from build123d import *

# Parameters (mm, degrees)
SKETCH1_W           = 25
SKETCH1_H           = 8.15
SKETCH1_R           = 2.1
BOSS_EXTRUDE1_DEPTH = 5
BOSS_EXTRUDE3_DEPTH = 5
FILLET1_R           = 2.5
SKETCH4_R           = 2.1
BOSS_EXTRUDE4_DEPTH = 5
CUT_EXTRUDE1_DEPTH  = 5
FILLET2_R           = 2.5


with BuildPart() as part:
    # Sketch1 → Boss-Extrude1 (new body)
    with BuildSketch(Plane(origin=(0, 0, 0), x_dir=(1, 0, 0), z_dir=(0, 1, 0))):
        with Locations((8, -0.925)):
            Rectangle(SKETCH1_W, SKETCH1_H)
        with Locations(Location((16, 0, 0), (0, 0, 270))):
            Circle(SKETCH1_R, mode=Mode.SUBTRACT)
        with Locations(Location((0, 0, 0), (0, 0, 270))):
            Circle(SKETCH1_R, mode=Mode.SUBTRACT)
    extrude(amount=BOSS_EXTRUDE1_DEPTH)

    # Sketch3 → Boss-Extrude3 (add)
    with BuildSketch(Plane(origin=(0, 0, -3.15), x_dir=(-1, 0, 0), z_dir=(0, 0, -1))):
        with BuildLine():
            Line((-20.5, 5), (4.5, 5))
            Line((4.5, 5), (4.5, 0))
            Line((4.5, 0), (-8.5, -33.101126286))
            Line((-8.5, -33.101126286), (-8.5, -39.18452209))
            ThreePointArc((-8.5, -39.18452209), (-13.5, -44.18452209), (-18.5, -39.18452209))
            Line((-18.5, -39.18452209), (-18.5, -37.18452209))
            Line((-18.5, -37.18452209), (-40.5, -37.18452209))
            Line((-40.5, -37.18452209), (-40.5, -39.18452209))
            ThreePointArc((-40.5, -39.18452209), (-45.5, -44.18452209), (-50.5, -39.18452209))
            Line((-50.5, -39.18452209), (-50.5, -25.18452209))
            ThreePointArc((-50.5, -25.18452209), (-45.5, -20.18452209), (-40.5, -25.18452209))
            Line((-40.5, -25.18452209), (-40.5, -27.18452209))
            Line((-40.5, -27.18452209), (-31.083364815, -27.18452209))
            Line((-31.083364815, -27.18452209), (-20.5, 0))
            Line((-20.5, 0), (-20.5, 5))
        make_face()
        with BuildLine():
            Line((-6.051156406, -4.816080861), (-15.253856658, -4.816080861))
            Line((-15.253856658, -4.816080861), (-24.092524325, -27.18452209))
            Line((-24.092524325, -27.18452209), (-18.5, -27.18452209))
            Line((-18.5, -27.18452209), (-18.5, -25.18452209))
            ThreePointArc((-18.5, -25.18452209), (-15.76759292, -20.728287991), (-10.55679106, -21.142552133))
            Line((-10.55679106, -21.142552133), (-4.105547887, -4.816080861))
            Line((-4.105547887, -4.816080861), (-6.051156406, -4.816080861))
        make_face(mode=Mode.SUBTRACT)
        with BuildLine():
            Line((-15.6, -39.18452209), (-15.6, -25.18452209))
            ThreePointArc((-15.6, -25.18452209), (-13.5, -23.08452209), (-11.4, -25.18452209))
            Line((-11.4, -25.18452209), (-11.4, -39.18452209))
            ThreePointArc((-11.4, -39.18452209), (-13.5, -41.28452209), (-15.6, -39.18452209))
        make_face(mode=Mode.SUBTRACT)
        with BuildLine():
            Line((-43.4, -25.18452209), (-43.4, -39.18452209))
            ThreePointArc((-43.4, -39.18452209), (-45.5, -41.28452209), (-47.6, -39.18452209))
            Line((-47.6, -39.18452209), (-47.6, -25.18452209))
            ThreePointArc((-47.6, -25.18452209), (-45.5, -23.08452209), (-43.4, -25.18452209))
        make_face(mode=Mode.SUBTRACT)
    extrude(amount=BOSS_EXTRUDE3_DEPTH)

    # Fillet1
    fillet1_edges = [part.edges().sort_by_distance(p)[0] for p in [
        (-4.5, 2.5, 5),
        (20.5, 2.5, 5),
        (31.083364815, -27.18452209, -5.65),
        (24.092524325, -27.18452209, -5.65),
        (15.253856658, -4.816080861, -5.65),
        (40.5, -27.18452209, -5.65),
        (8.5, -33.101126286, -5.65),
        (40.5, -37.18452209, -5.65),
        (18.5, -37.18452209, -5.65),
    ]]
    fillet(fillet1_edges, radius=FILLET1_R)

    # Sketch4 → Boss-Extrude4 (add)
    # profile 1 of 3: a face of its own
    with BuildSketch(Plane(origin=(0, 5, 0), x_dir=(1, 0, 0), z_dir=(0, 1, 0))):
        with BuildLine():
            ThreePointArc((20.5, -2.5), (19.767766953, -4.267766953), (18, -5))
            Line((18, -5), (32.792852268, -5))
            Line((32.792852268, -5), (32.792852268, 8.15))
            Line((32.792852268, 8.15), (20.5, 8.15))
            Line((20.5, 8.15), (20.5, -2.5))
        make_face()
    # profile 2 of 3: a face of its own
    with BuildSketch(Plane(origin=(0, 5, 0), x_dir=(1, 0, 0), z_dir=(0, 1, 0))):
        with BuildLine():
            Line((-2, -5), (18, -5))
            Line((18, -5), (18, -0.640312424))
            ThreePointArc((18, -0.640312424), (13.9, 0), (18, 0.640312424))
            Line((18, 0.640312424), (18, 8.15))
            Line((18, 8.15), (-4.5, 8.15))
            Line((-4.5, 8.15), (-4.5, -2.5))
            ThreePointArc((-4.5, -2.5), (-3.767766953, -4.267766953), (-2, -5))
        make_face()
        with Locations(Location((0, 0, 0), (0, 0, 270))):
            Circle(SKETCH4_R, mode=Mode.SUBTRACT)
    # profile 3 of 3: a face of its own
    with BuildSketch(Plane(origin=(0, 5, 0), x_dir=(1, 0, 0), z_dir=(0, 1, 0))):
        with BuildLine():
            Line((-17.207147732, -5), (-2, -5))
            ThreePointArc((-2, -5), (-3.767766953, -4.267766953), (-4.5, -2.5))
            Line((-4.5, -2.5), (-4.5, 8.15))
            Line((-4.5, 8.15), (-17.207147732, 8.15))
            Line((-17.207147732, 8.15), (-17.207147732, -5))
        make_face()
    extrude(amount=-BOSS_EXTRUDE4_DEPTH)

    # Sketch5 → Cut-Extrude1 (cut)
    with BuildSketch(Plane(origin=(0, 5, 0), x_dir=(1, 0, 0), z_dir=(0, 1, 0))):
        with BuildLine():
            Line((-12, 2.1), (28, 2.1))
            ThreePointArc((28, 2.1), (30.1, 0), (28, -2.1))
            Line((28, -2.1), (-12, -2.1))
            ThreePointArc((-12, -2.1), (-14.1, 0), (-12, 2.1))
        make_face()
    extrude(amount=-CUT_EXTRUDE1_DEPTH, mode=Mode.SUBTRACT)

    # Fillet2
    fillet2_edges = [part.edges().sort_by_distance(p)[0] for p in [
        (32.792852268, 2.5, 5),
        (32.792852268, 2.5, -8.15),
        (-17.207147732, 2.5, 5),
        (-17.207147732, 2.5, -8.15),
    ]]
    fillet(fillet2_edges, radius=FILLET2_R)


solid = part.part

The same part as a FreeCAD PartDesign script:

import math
import FreeCAD as App
import Part
import Sketcher
from FreeCAD import Vector
Q = App.Units.Quantity


def edges_at(feature, points):
    """Names of the edges that pass closest to the given points."""
    edges = feature.Shape.Edges
    near = lambda p: min(range(len(edges)), key=lambda i: edges[i].distToShape(Part.Vertex(*p))[0])
    return sorted({f"Edge{near(p) + 1}" for p in points})

doc = App.newDocument("Part")
body = doc.addObject("PartDesign::Body", "Body")

sketch1 = body.newObject("Sketcher::SketchObject", "Sketch")
sketch1.AttachmentSupport = (doc.getObject("XZ_Plane"), [""])
sketch1.MapMode = "FlatFace"
sketch1.addGeometry(Part.LineSegment(Vector(-4.5, -3.15, 0), Vector(-4.5, 5, 0)), False)
sketch1.addGeometry(Part.LineSegment(Vector(-4.5, 5, 0), Vector(20.5, 5, 0)), False)
sketch1.addGeometry(Part.LineSegment(Vector(20.5, 5, 0), Vector(20.5, -3.15, 0)), False)
sketch1.addGeometry(Part.LineSegment(Vector(20.5, -3.15, 0), Vector(-4.5, -3.15, 0)), False)
sketch1.addGeometry(Part.Circle(Vector(0, 0, 0), Vector(0, 0, 1), 2.1), False)
sketch1.addGeometry(Part.Circle(Vector(16, 0, 0), Vector(0, 0, 1), 2.1), False)
sketch1.addConstraint(Sketcher.Constraint("Coincident", 0, 2, 1, 1))
sketch1.addConstraint(Sketcher.Constraint("Coincident", 1, 2, 2, 1))
sketch1.addConstraint(Sketcher.Constraint("Coincident", 2, 2, 3, 1))
sketch1.addConstraint(Sketcher.Constraint("Coincident", 3, 2, 0, 1))
sketch1.addConstraint(Sketcher.Constraint("Vertical", 0))
sketch1.addConstraint(Sketcher.Constraint("Horizontal", 1))
sketch1.addConstraint(Sketcher.Constraint("Vertical", 2))
sketch1.addConstraint(Sketcher.Constraint("Horizontal", 3))
sketch1.addConstraint(Sketcher.Constraint("Coincident", 4, 3, -1, 1))
sketch1.addConstraint(Sketcher.Constraint("Equal", 4, 5))
sketch1.addConstraint(Sketcher.Constraint("PointOnObject", 5, 3, -1))
sketch1.addConstraint(Sketcher.Constraint("Diameter", 4, Q("4.2 mm")))
sketch1.addConstraint(Sketcher.Constraint("DistanceX", 1, 1, 1, 2, Q("25 mm")))
sketch1.addConstraint(Sketcher.Constraint("DistanceX", -1, 1, 5, 3, Q("16 mm")))
sketch1.addConstraint(Sketcher.Constraint("DistanceY", -1, 1, 0, 2, Q("5 mm")))
sketch1.addConstraint(Sketcher.Constraint("DistanceY", 0, 1, 0, 2, Q("8.15 mm")))
sketch1.addConstraint(Sketcher.Constraint("DistanceX", 0, 2, -1, 1, Q("4.5 mm")))
pad1 = body.newObject("PartDesign::Pad", "Pad")
pad1.Profile = sketch1
pad1.Length = 5
pad1.Reversed = True

sketch2 = body.newObject("Sketcher::SketchObject", "Sketch001")
sketch2.AttachmentSupport = (doc.getObject("XY_Plane"), [""])
sketch2.MapMode = "FlatFace"
sketch2.AttachmentOffset = App.Placement(Vector(0, 0, -3.15), App.Rotation())
sketch2.addGeometry(Part.LineSegment(Vector(-4.5, 5, 0), Vector(20.5, 5, 0)), False)
sketch2.addGeometry(Part.LineSegment(Vector(20.5, 5, 0), Vector(20.5, 0, 0)), False)
sketch2.addGeometry(Part.LineSegment(Vector(20.5, 0, 0), Vector(31.083365, -27.184522, 0)), False)
sketch2.addGeometry(Part.LineSegment(Vector(31.083365, -27.184522, 0), Vector(40.5, -27.184522, 0)), False)
sketch2.addGeometry(Part.LineSegment(Vector(40.5, -27.184522, 0), Vector(40.5, -25.184522, 0)), False)
sketch2.addGeometry(Part.ArcOfCircle(Part.Circle(Vector(45.5, -25.184522, 0), Vector(0, 0, 1), 5), math.radians(0), math.radians(180)), False)
sketch2.addGeometry(Part.LineSegment(Vector(50.5, -25.184522, 0), Vector(50.5, -39.184522, 0)), False)
sketch2.addGeometry(Part.ArcOfCircle(Part.Circle(Vector(45.5, -39.184522, 0), Vector(0, 0, 1), 5), math.radians(180), math.radians(360)), False)
sketch2.addGeometry(Part.LineSegment(Vector(40.5, -39.184522, 0), Vector(40.5, -37.184522, 0)), False)
sketch2.addGeometry(Part.LineSegment(Vector(40.5, -37.184522, 0), Vector(18.5, -37.184522, 0)), False)
sketch2.addGeometry(Part.LineSegment(Vector(18.5, -37.184522, 0), Vector(18.5, -39.184522, 0)), False)
sketch2.addGeometry(Part.ArcOfCircle(Part.Circle(Vector(13.5, -39.184522, 0), Vector(0, 0, 1), 5), math.radians(180), math.radians(360)), False)
sketch2.addGeometry(Part.LineSegment(Vector(8.5, -39.184522, 0), Vector(8.5, -33.101126, 0)), False)
sketch2.addGeometry(Part.LineSegment(Vector(8.5, -33.101126, 0), Vector(-4.5, 0, 0)), False)
sketch2.addGeometry(Part.LineSegment(Vector(-4.5, 0, 0), Vector(-4.5, 5, 0)), False)
sketch2.addGeometry(Part.LineSegment(Vector(15.6, -39.184522, 0), Vector(15.6, -25.184522, 0)), False)
sketch2.addGeometry(Part.ArcOfCircle(Part.Circle(Vector(13.5, -25.184522, 0), Vector(0, 0, 1), 2.1), math.radians(0), math.radians(180)), False)
sketch2.addGeometry(Part.LineSegment(Vector(11.4, -25.184522, 0), Vector(11.4, -39.184522, 0)), False)
sketch2.addGeometry(Part.ArcOfCircle(Part.Circle(Vector(13.5, -39.184522, 0), Vector(0, 0, 1), 2.1), math.radians(180), math.radians(360)), False)
sketch2.addGeometry(Part.LineSegment(Vector(43.4, -25.184522, 0), Vector(43.4, -39.184522, 0)), False)
sketch2.addGeometry(Part.ArcOfCircle(Part.Circle(Vector(45.5, -39.184522, 0), Vector(0, 0, 1), 2.1), math.radians(180), math.radians(360)), False)
sketch2.addGeometry(Part.LineSegment(Vector(47.6, -39.184522, 0), Vector(47.6, -25.184522, 0)), False)
sketch2.addGeometry(Part.ArcOfCircle(Part.Circle(Vector(45.5, -25.184522, 0), Vector(0, 0, 1), 2.1), math.radians(0), math.radians(180)), False)
sketch2.addGeometry(Part.LineSegment(Vector(15.253857, -4.816081, 0), Vector(4.105548, -4.816081, 0)), False)
sketch2.addGeometry(Part.LineSegment(Vector(4.105548, -4.816081, 0), Vector(10.556791, -21.142552, 0)), False)
sketch2.addGeometry(Part.ArcOfCircle(Part.Circle(Vector(13.5, -25.184522, 0), Vector(0, 0, 1), 5), math.radians(0), math.radians(126.060684)), False)
sketch2.addGeometry(Part.LineSegment(Vector(18.5, -25.184522, 0), Vector(18.5, -27.184522, 0)), False)
sketch2.addGeometry(Part.LineSegment(Vector(18.5, -27.184522, 0), Vector(24.092524, -27.184522, 0)), False)
sketch2.addGeometry(Part.LineSegment(Vector(24.092524, -27.184522, 0), Vector(15.253857, -4.816081, 0)), False)
sketch2.addConstraint(Sketcher.Constraint("Coincident", 0, 2, 1, 1))
sketch2.addConstraint(Sketcher.Constraint("Coincident", 1, 2, 2, 1))
sketch2.addConstraint(Sketcher.Constraint("Coincident", 2, 2, 3, 1))
sketch2.addConstraint(Sketcher.Constraint("Coincident", 3, 2, 4, 1))
sketch2.addConstraint(Sketcher.Constraint("Tangent", 4, 2, 5, 2))
sketch2.addConstraint(Sketcher.Constraint("Tangent", 5, 1, 6, 1))
sketch2.addConstraint(Sketcher.Constraint("Tangent", 6, 2, 7, 2))
sketch2.addConstraint(Sketcher.Constraint("Tangent", 7, 1, 8, 1))
sketch2.addConstraint(Sketcher.Constraint("Coincident", 8, 2, 9, 1))
sketch2.addConstraint(Sketcher.Constraint("Coincident", 9, 2, 10, 1))
sketch2.addConstraint(Sketcher.Constraint("Tangent", 10, 2, 11, 2))
sketch2.addConstraint(Sketcher.Constraint("Tangent", 11, 1, 12, 1))
sketch2.addConstraint(Sketcher.Constraint("Coincident", 12, 2, 13, 1))
sketch2.addConstraint(Sketcher.Constraint("Coincident", 13, 2, 14, 1))
sketch2.addConstraint(Sketcher.Constraint("Coincident", 14, 2, 0, 1))
sketch2.addConstraint(Sketcher.Constraint("Tangent", 15, 2, 16, 1))
sketch2.addConstraint(Sketcher.Constraint("Tangent", 16, 2, 17, 1))
sketch2.addConstraint(Sketcher.Constraint("Tangent", 17, 2, 18, 1))
sketch2.addConstraint(Sketcher.Constraint("Tangent", 18, 2, 15, 1))
sketch2.addConstraint(Sketcher.Constraint("Tangent", 19, 2, 20, 1))
sketch2.addConstraint(Sketcher.Constraint("Tangent", 20, 2, 21, 1))
sketch2.addConstraint(Sketcher.Constraint("Tangent", 21, 2, 22, 1))
sketch2.addConstraint(Sketcher.Constraint("Tangent", 22, 2, 19, 1))
sketch2.addConstraint(Sketcher.Constraint("Coincident", 23, 2, 24, 1))
sketch2.addConstraint(Sketcher.Constraint("Coincident", 24, 2, 25, 2))
sketch2.addConstraint(Sketcher.Constraint("Tangent", 25, 1, 26, 1))
sketch2.addConstraint(Sketcher.Constraint("Coincident", 26, 2, 27, 1))
sketch2.addConstraint(Sketcher.Constraint("Coincident", 27, 2, 28, 1))
sketch2.addConstraint(Sketcher.Constraint("Coincident", 28, 2, 23, 1))
sketch2.addConstraint(Sketcher.Constraint("Horizontal", 0))
sketch2.addConstraint(Sketcher.Constraint("Vertical", 1))
sketch2.addConstraint(Sketcher.Constraint("Horizontal", 3))
sketch2.addConstraint(Sketcher.Constraint("Vertical", 4))
sketch2.addConstraint(Sketcher.Constraint("Vertical", 6))
sketch2.addConstraint(Sketcher.Constraint("Vertical", 8))
sketch2.addConstraint(Sketcher.Constraint("Horizontal", 9))
sketch2.addConstraint(Sketcher.Constraint("Vertical", 10))
sketch2.addConstraint(Sketcher.Constraint("Vertical", 12))
sketch2.addConstraint(Sketcher.Constraint("Vertical", 14))
sketch2.addConstraint(Sketcher.Constraint("Vertical", 15))
sketch2.addConstraint(Sketcher.Constraint("Vertical", 17))
sketch2.addConstraint(Sketcher.Constraint("Vertical", 19))
sketch2.addConstraint(Sketcher.Constraint("Vertical", 21))
sketch2.addConstraint(Sketcher.Constraint("Horizontal", 23))
sketch2.addConstraint(Sketcher.Constraint("Vertical", 26))
sketch2.addConstraint(Sketcher.Constraint("Horizontal", 27))
sketch2.addConstraint(Sketcher.Constraint("Coincident", 18, 3, 11, 3))
sketch2.addConstraint(Sketcher.Constraint("Coincident", 20, 3, 7, 3))
sketch2.addConstraint(Sketcher.Constraint("Coincident", 22, 3, 5, 3))
sketch2.addConstraint(Sketcher.Constraint("Coincident", 25, 3, 16, 3))
sketch2.addConstraint(Sketcher.Constraint("Equal", 7, 11))
sketch2.addConstraint(Sketcher.Constraint("Equal", 18, 20))
sketch2.addConstraint(Sketcher.Constraint("Equal", 11, 25))
sketch2.addConstraint(Sketcher.Constraint("PointOnObject", 1, 2, -1))
sketch2.addConstraint(Sketcher.Constraint("PointOnObject", 13, 2, -1))
sketch2.addConstraint(Sketcher.Constraint("Parallel", 24, 28))
sketch2.addConstraint(Sketcher.Constraint("Horizontal", 7, 3, 11, 3))
sketch2.addConstraint(Sketcher.Constraint("Horizontal", 5, 3, 16, 3))
sketch2.addConstraint(Sketcher.Constraint("Horizontal", 3, 2, 26, 2))
sketch2.addConstraint(Sketcher.Constraint("Equal", 4, 8))
sketch2.addConstraint(Sketcher.Constraint("Radius", 5, Q("5 mm")))
sketch2.addConstraint(Sketcher.Constraint("Radius", 16, Q("2.1 mm")))
sketch2.addConstraint(Sketcher.Constraint("DistanceX", 0, 1, 0, 2, Q("25 mm")))
sketch2.addConstraint(Sketcher.Constraint("DistanceX", 9, 2, 9, 1, Q("22 mm")))
sketch2.addConstraint(Sketcher.Constraint("DistanceY", 1, 2, 1, 1, Q("5 mm")))
sketch2.addConstraint(Sketcher.Constraint("DistanceY", 4, 1, 4, 2, Q("2 mm")))
sketch2.addConstraint(Sketcher.Constraint("DistanceY", 6, 2, 6, 1, Q("14 mm")))
sketch2.addConstraint(Sketcher.Constraint("DistanceX", 16, 3, 0, 2, Q("7 mm")))
sketch2.addConstraint(Sketcher.Constraint("DistanceX", -1, 1, 5, 3, Q("45.5 mm")))
sketch2.addConstraint(Sketcher.Constraint("DistanceX", 23, 2, 23, 1, Q("11.148309 mm")))
sketch2.addConstraint(Sketcher.Constraint("DistanceX", 3, 1, 3, 2, Q("9.416635 mm")))
sketch2.addConstraint(Sketcher.Constraint("DistanceX", 27, 1, 27, 2, Q("5.592524 mm")))
sketch2.addConstraint(Sketcher.Constraint("DistanceY", 12, 1, 12, 2, Q("6.083396 mm")))
sketch2.addConstraint(Sketcher.Constraint("DistanceY", 23, 2, -1, 1, Q("4.816081 mm")))
sketch2.addConstraint(Sketcher.Constraint("DistanceX", -1, 1, 24, 2, Q("10.556791 mm")))
sketch2.addConstraint(Sketcher.Constraint("DistanceY", 16, 2, 23, 2, Q("20.368441 mm")))
pad2 = body.newObject("PartDesign::Pad", "Pad001")
pad2.Profile = sketch2
pad2.Length = 5
pad2.Reversed = True
doc.recompute()

fillet = body.newObject("PartDesign::Fillet", "Fillet")
fillet.Base = (pad2, edges_at(pad2, [
    (-4.5, 2.5, 5),
    (20.5, 2.5, 5),
    (31.083, -27.185, -5.65),
    (24.093, -27.185, -5.65),
    (15.254, -4.816, -5.65),
    (40.5, -27.185, -5.65),
    (8.5, -33.101, -5.65),
    (40.5, -37.185, -5.65),
    (18.5, -37.185, -5.65),
]))
fillet.Radius = 2.5

sketch3 = body.newObject("Sketcher::SketchObject", "Sketch002")
sketch3.AttachmentSupport = (doc.getObject("XZ_Plane"), [""])
sketch3.MapMode = "FlatFace"
sketch3.AttachmentOffset = App.Placement(Vector(0, 0, -5), App.Rotation())
sketch3.addGeometry(Part.ArcOfCircle(Part.Circle(Vector(18, 2.5, 0), Vector(0, 0, 1), 2.5), math.radians(0), math.radians(90)), False)
sketch3.addGeometry(Part.LineSegment(Vector(18, 5, 0), Vector(32.792852, 5, 0)), False)
sketch3.addGeometry(Part.LineSegment(Vector(32.792852, 5, 0), Vector(32.792852, -8.15, 0)), False)
sketch3.addGeometry(Part.LineSegment(Vector(32.792852, -8.15, 0), Vector(20.5, -8.15, 0)), False)
sketch3.addGeometry(Part.LineSegment(Vector(20.5, -8.15, 0), Vector(20.5, 2.5, 0)), False)
sketch3.addGeometry(Part.LineSegment(Vector(18, 5, 0), Vector(18, 0.640312, 0)), False)
sketch3.addGeometry(Part.ArcOfCircle(Part.Circle(Vector(16, 0, 0), Vector(0, 0, 1), 2.1), math.radians(17.75279), math.radians(342.24721)), False)
sketch3.addGeometry(Part.LineSegment(Vector(18, -0.640312, 0), Vector(18, -8.15, 0)), False)
sketch3.addGeometry(Part.LineSegment(Vector(18, -8.15, 0), Vector(-17.207148, -8.15, 0)), False)
sketch3.addGeometry(Part.LineSegment(Vector(-17.207148, -8.15, 0), Vector(-17.207148, 5, 0)), False)
sketch3.addGeometry(Part.LineSegment(Vector(-17.207148, 5, 0), Vector(18, 5, 0)), False)
sketch3.addGeometry(Part.Circle(Vector(0, 0, 0), Vector(0, 0, 1), 2.1), False)
sketch3.addConstraint(Sketcher.Constraint("Tangent", 0, 2, 1, 1))
sketch3.addConstraint(Sketcher.Constraint("Coincident", 1, 2, 2, 1))
sketch3.addConstraint(Sketcher.Constraint("Coincident", 2, 2, 3, 1))
sketch3.addConstraint(Sketcher.Constraint("Coincident", 3, 2, 4, 1))
sketch3.addConstraint(Sketcher.Constraint("Tangent", 4, 2, 0, 1))
sketch3.addConstraint(Sketcher.Constraint("Coincident", 5, 2, 6, 1))
sketch3.addConstraint(Sketcher.Constraint("Coincident", 6, 2, 7, 1))
sketch3.addConstraint(Sketcher.Constraint("Coincident", 7, 2, 8, 1))
sketch3.addConstraint(Sketcher.Constraint("Coincident", 8, 2, 9, 1))
sketch3.addConstraint(Sketcher.Constraint("Coincident", 9, 2, 10, 1))
sketch3.addConstraint(Sketcher.Constraint("Coincident", 10, 2, 5, 1))
sketch3.addConstraint(Sketcher.Constraint("Horizontal", 1))
sketch3.addConstraint(Sketcher.Constraint("Vertical", 2))
sketch3.addConstraint(Sketcher.Constraint("Horizontal", 3))
sketch3.addConstraint(Sketcher.Constraint("Vertical", 4))
sketch3.addConstraint(Sketcher.Constraint("Vertical", 5))
sketch3.addConstraint(Sketcher.Constraint("Vertical", 7))
sketch3.addConstraint(Sketcher.Constraint("Horizontal", 8))
sketch3.addConstraint(Sketcher.Constraint("Vertical", 9))
sketch3.addConstraint(Sketcher.Constraint("Horizontal", 10))
sketch3.addConstraint(Sketcher.Constraint("Coincident", 11, 3, -1, 1))
sketch3.addConstraint(Sketcher.Constraint("Coincident", 10, 2, 0, 2))
sketch3.addConstraint(Sketcher.Constraint("Equal", 6, 11))
sketch3.addConstraint(Sketcher.Constraint("Symmetric", 5, 2, 6, 2, -1))
sketch3.addConstraint(Sketcher.Constraint("Horizontal", 3, 2, 7, 2))
sketch3.addConstraint(Sketcher.Constraint("Diameter", 11, Q("4.2 mm")))
sketch3.addConstraint(Sketcher.Constraint("Radius", 0, Q("2.5 mm")))
sketch3.addConstraint(Sketcher.Constraint("DistanceX", -1, 1, 0, 3, Q("18 mm")))
sketch3.addConstraint(Sketcher.Constraint("DistanceX", -1, 1, 6, 3, Q("16 mm")))
sketch3.addConstraint(Sketcher.Constraint("DistanceY", -1, 1, 0, 2, Q("5 mm")))
sketch3.addConstraint(Sketcher.Constraint("DistanceY", 2, 2, 2, 1, Q("13.15 mm")))
sketch3.addConstraint(Sketcher.Constraint("DistanceX", 1, 1, 1, 2, Q("14.792852 mm")))
sketch3.addConstraint(Sketcher.Constraint("DistanceX", 8, 2, 8, 1, Q("35.207148 mm")))
pad3 = body.newObject("PartDesign::Pad", "Pad002")
pad3.Profile = sketch3
pad3.Length = 5

sketch4 = body.newObject("Sketcher::SketchObject", "Sketch003")
sketch4.AttachmentSupport = (doc.getObject("XZ_Plane"), [""])
sketch4.MapMode = "FlatFace"
sketch4.AttachmentOffset = App.Placement(Vector(0, 0, -5), App.Rotation())
sketch4.addGeometry(Part.LineSegment(Vector(28, -2.1, 0), Vector(-12, -2.1, 0)), False)
sketch4.addGeometry(Part.ArcOfCircle(Part.Circle(Vector(-12, 0, 0), Vector(0, 0, 1), 2.1), math.radians(90), math.radians(270)), False)
sketch4.addGeometry(Part.LineSegment(Vector(-12, 2.1, 0), Vector(28, 2.1, 0)), False)
sketch4.addGeometry(Part.ArcOfCircle(Part.Circle(Vector(28, 0, 0), Vector(0, 0, 1), 2.1), math.radians(-90), math.radians(90)), False)
sketch4.addConstraint(Sketcher.Constraint("Tangent", 0, 2, 1, 2))
sketch4.addConstraint(Sketcher.Constraint("Tangent", 1, 1, 2, 1))
sketch4.addConstraint(Sketcher.Constraint("Tangent", 2, 2, 3, 2))
sketch4.addConstraint(Sketcher.Constraint("Tangent", 3, 1, 0, 1))
sketch4.addConstraint(Sketcher.Constraint("Horizontal", 0))
sketch4.addConstraint(Sketcher.Constraint("Horizontal", 2))
sketch4.addConstraint(Sketcher.Constraint("PointOnObject", 1, 3, -1))
sketch4.addConstraint(Sketcher.Constraint("Radius", 1, Q("2.1 mm")))
sketch4.addConstraint(Sketcher.Constraint("DistanceX", 0, 2, 0, 1, Q("40 mm")))
sketch4.addConstraint(Sketcher.Constraint("DistanceX", 1, 3, -1, 1, Q("12 mm")))
pocket1 = body.newObject("PartDesign::Pocket", "Pocket")
pocket1.Profile = sketch4
pocket1.Length = 5
pocket1.Reversed = True
doc.recompute()

fillet2 = body.newObject("PartDesign::Fillet", "Fillet001")
fillet2.Base = (pocket1, edges_at(pocket1, [
    (32.793, 2.5, 5),
    (32.793, 2.5, -8.15),
    (-17.207, 2.5, 5),
    (-17.207, 2.5, -8.15),
]))
fillet2.Radius = 2.5

doc.recompute()
